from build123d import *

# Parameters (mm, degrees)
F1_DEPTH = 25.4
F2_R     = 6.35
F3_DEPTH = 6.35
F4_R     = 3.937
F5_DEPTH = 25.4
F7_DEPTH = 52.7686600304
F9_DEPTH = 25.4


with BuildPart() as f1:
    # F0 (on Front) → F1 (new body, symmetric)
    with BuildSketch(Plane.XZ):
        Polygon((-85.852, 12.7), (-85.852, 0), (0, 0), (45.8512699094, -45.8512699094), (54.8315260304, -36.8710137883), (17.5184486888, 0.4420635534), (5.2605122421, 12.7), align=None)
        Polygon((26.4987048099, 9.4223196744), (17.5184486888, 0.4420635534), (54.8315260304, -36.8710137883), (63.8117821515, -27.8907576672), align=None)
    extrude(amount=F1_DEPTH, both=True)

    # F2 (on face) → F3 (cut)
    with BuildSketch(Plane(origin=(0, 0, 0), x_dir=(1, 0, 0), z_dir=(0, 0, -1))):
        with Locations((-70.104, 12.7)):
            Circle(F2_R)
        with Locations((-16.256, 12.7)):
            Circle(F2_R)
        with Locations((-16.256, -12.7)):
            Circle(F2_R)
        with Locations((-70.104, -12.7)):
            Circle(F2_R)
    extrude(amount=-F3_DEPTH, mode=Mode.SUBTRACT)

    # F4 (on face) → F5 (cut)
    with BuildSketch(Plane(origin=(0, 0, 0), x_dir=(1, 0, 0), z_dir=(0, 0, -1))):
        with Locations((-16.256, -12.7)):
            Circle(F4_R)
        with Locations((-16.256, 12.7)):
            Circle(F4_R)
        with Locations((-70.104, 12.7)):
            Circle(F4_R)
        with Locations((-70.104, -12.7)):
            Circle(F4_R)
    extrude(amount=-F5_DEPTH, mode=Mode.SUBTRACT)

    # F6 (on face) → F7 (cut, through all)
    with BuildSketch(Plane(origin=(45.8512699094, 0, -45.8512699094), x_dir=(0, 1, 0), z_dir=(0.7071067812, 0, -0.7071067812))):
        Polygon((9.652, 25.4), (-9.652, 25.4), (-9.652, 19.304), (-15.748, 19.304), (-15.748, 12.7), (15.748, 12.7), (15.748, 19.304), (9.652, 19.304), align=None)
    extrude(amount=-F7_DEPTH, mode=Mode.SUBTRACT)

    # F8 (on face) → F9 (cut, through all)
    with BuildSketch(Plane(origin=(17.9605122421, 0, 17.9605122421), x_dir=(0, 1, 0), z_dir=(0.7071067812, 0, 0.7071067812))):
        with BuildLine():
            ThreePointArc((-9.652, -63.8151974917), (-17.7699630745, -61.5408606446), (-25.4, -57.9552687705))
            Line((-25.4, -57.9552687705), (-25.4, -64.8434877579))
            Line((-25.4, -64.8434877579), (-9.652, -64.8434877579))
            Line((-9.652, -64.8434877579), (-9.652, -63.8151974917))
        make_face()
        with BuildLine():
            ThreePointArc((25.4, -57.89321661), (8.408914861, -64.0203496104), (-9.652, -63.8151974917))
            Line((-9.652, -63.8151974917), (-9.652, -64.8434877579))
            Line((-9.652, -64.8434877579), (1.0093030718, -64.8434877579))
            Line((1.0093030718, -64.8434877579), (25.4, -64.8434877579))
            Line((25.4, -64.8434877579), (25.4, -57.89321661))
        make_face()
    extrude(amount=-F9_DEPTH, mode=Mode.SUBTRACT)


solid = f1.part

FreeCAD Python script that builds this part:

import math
import FreeCAD as App
import Part
import Sketcher
Q = App.Units.Quantity

doc = App.newDocument("Part")
body = doc.addObject("PartDesign::Body", "Body")

sketch1 = body.newObject("Sketcher::SketchObject", "Sketch")
sketch1.AttachmentSupport = (doc.getObject("XZ_Plane"), [""])
sketch1.MapMode = "FlatFace"
sketch1.addGeometry([
    Part.LineSegment(App.Vector(-86, 13, 0), App.Vector(-86, 0, 0)),
    Part.LineSegment(App.Vector(-86, 0, 0), App.Vector(0, 0, 0)),
    Part.LineSegment(App.Vector(0, 0, 0), App.Vector(46, -46, 0)),
    Part.LineSegment(App.Vector(46, -46, 0), App.Vector(55, -37, 0)),
    Part.LineSegment(App.Vector(55, -37, 0), App.Vector(64, -28, 0)),
    Part.LineSegment(App.Vector(64, -28, 0), App.Vector(26, 9, 0)),
    Part.LineSegment(App.Vector(26, 9, 0), App.Vector(18, 0, 0)),
    Part.LineSegment(App.Vector(18, 0, 0), App.Vector(5, 13, 0)),
    Part.LineSegment(App.Vector(5, 13, 0), App.Vector(-86, 13, 0)),
], False)
sketch1.addConstraint([
    Sketcher.Constraint("Coincident", 0, 2, 1, 1),
    Sketcher.Constraint("Coincident", 1, 2, 2, 1),
    Sketcher.Constraint("Coincident", 2, 2, 3, 1),
    Sketcher.Constraint("Coincident", 3, 2, 4, 1),
    Sketcher.Constraint("Coincident", 4, 2, 5, 1),
    Sketcher.Constraint("Coincident", 5, 2, 6, 1),
    Sketcher.Constraint("Coincident", 6, 2, 7, 1),
    Sketcher.Constraint("Coincident", 7, 2, 8, 1),
    Sketcher.Constraint("Coincident", 8, 2, 0, 1),
    Sketcher.Constraint("Vertical", 0),
    Sketcher.Constraint("Horizontal", 1),
    Sketcher.Constraint("Horizontal", 8),
    Sketcher.Constraint("Coincident", 1, 2, -1, 1),
    Sketcher.Constraint("Perpendicular", 2, 3),
    Sketcher.Constraint("Parallel", 3, 4),
    Sketcher.Constraint("Perpendicular", 4, 5),
    Sketcher.Constraint("Perpendicular", 5, 6),
    Sketcher.Constraint("Perpendicular", 6, 7),
    Sketcher.Constraint("Equal", 3, 4),
    Sketcher.Constraint("Equal", 4, 6),
    Sketcher.Constraint("DistanceY", 0, 2, 0, 1, Q("0.5 in")),
    Sketcher.Constraint("Angle", 2, Q("-45 deg")),
    Sketcher.Constraint("Distance", 3, Q("0.5 in")),
    Sketcher.Constraint("DistanceX", 1, 1, 1, 2, Q("3.38 in")),
    Sketcher.Constraint("Distance", 5, 52.76866),
    Sketcher.Constraint("Distance", 7, 17.33534),
])
pad1 = body.newObject("PartDesign::Pad", "Pad")
pad1.Profile = sketch1
pad1.Length = Q("2 in")
pad1.Midplane = True

sketch2 = body.newObject("Sketcher::SketchObject", "Sketch001")
sketch2.AttachmentSupport = (doc.getObject("XY_Plane"), [""])
sketch2.MapMode = "FlatFace"
sketch2.addGeometry([
    Part.Circle(App.Vector(-70, -13, 0), App.Vector(0, 0, 1), 6),
    Part.Circle(App.Vector(-16, -13, 0), App.Vector(0, 0, 1), 6),
    Part.Circle(App.Vector(-16, 13, 0), App.Vector(0, 0, 1), 6),
    Part.Circle(App.Vector(-70, 13, 0), App.Vector(0, 0, 1), 6),
], False)
sketch2.addConstraint([
    Sketcher.Constraint("Equal", 0, 1),
    Sketcher.Constraint("Equal", 1, 2),
    Sketcher.Constraint("Equal", 2, 3),
    Sketcher.Constraint("Symmetric", 1, 3, 2, 3, -1),
    Sketcher.Constraint("Symmetric", 0, 3, 3, 3, -1),
    Sketcher.Constraint("Horizontal", 0, 3, 1, 3),
    Sketcher.Constraint("Diameter", 0, Q("0.5 in")),
    Sketcher.Constraint("DistanceY", 1, 3, 2, 3, Q("1 in")),
    Sketcher.Constraint("DistanceX", 0, 3, -1, 1, Q("2.76 in")),
    Sketcher.Constraint("DistanceX", 1, 3, -1, 1, Q("0.64 in")),
])
pocket1 = body.newObject("PartDesign::Pocket", "Pocket")
pocket1.Profile = sketch2
pocket1.Length = Q("0.25 in")
pocket1.Reversed = True

sketch3 = body.newObject("Sketcher::SketchObject", "Sketch002")
sketch3.AttachmentSupport = (doc.getObject("XY_Plane"), [""])
sketch3.MapMode = "FlatFace"
sketch3.addGeometry([
    Part.Circle(App.Vector(-16.3, 12.7, 0), App.Vector(0, 0, 1), 3.9),
    Part.Circle(App.Vector(-16.3, -12.7, 0), App.Vector(0, 0, 1), 3.9),
    Part.Circle(App.Vector(-70.1, -12.7, 0), App.Vector(0, 0, 1), 3.9),
    Part.Circle(App.Vector(-70.1, 12.7, 0), App.Vector(0, 0, 1), 3.9),
], False)
sketch3.addConstraint([
    Sketcher.Constraint("Equal", 0, 1),
    Sketcher.Constraint("Equal", 1, 2),
    Sketcher.Constraint("Equal", 2, 3),
    Sketcher.Constraint("Symmetric", 0, 3, 1, 3, -1),
    Sketcher.Constraint("Symmetric", 2, 3, 3, 3, -1),
    Sketcher.Constraint("Horizontal", 1, 3, 2, 3),
    Sketcher.Constraint("Diameter", 0, Q("0.31 in")),
    Sketcher.Constraint("DistanceY", 1, 3, 0, 3, Q("1 in")),
    Sketcher.Constraint("DistanceX", 0, 3, -1, 1, Q("0.64 in")),
    Sketcher.Constraint("DistanceX", 2, 3, -1, 1, Q("2.76 in")),
])
pocket2 = body.newObject("PartDesign::Pocket", "Pocket001")
pocket2.Profile = sketch3
pocket2.Length = Q("1 in")
pocket2.Reversed = True

sketch4 = body.newObject("Sketcher::SketchObject", "Sketch003")
sketch4.Placement = App.Placement(App.Vector(45.85127, 0, -45.85127), App.Rotation(App.Vector(0, 1, 0), App.Vector(0.707106781, 0, 0.707106781), App.Vector(0.707106781, 0, -0.707106781), "ZXY"))
sketch4.addGeometry([
    Part.LineSegment(App.Vector(10, 25, 0), App.Vector(-10, 25, 0)),
    Part.LineSegment(App.Vector(-10, 25, 0), App.Vector(-10, 19, 0)),
    Part.LineSegment(App.Vector(-10, 19, 0), App.Vector(-16, 19, 0)),
    Part.LineSegment(App.Vector(-16, 19, 0), App.Vector(-16, 13, 0)),
    Part.LineSegment(App.Vector(-16, 13, 0), App.Vector(16, 13, 0)),
    Part.LineSegment(App.Vector(16, 13, 0), App.Vector(16, 19, 0)),
    Part.LineSegment(App.Vector(16, 19, 0), App.Vector(10, 19, 0)),
    Part.LineSegment(App.Vector(10, 19, 0), App.Vector(10, 25, 0)),
], False)
sketch4.addConstraint([
    Sketcher.Constraint("Coincident", 0, 2, 1, 1),
    Sketcher.Constraint("Coincident", 1, 2, 2, 1),
    Sketcher.Constraint("Coincident", 2, 2, 3, 1),
    Sketcher.Constraint("Coincident", 3, 2, 4, 1),
    Sketcher.Constraint("Coincident", 4, 2, 5, 1),
    Sketcher.Constraint("Coincident", 5, 2, 6, 1),
    Sketcher.Constraint("Coincident", 6, 2, 7, 1),
    Sketcher.Constraint("Coincident", 7, 2, 0, 1),
    Sketcher.Constraint("Horizontal", 0),
    Sketcher.Constraint("Vertical", 1),
    Sketcher.Constraint("Horizontal", 2),
    Sketcher.Constraint("Vertical", 3),
    Sketcher.Constraint("Horizontal", 4),
    Sketcher.Constraint("Vertical", 5),
    Sketcher.Constraint("Horizontal", 6),
    Sketcher.Constraint("Vertical", 7),
    Sketcher.Constraint("Symmetric", 2, 2, 5, 2, -2),
    Sketcher.Constraint("Equal", 2, 6),
    Sketcher.Constraint("Equal", 6, 1),
    Sketcher.Constraint("DistanceY", -1, 1, 0, 2, Q("1 in")),
    Sketcher.Constraint("DistanceX", 1, 2, 4, 2, Q("1 in")),
    Sketcher.Constraint("DistanceX", 0, 2, 0, 1, Q("0.76 in")),
    Sketcher.Constraint("DistanceY", 3, 2, 3, 1, Q("0.26 in")),
])
pocket3 = body.newObject("PartDesign::Pocket", "Pocket002")
pocket3.Profile = sketch4
pocket3.Type = "ThroughAll"

sketch5 = body.newObject("Sketcher::SketchObject", "Sketch004")
sketch5.Placement = App.Placement(App.Vector(17.960512, 0, 17.960512), App.Rotation(App.Vector(0, 1, 0), App.Vector(-0.707106781, 0, 0.707106781), App.Vector(0.707106781, 0, 0.707106781), "ZXY"))
sketch5.addGeometry([
    Part.ArcOfCircle(Part.Circle(App.Vector(0, -14, 0), App.Vector(0, 0, 1), 51), math.radians(-119.93), math.radians(-100.89)),
    Part.LineSegment(App.Vector(-25, -58, 0), App.Vector(-25, -65, 0)),
    Part.LineSegment(App.Vector(-25, -65, 0), App.Vector(25, -65, 0)),
    Part.LineSegment(App.Vector(25, -65, 0), App.Vector(25, -58, 0)),
    Part.ArcOfCircle(Part.Circle(App.Vector(0, -14, 0), App.Vector(0, 0, 1), 51), math.radians(-101), math.radians(-60)),
], False)
sketch5.addConstraint([
    Sketcher.Constraint("Coincident", 0, 1, 1, 1),
    Sketcher.Constraint("Coincident", 1, 2, 2, 1),
    Sketcher.Constraint("Coincident", 2, 2, 3, 1),
    Sketcher.Constraint("Coincident", 3, 2, 4, 2),
    Sketcher.Constraint("Tangent", 4, 1, 0, 2),
    Sketcher.Constraint("Vertical", 1),
    Sketcher.Constraint("Horizontal", 2),
    Sketcher.Constraint("Vertical", 3),
    Sketcher.Constraint("Equal", 0, 4),
    Sketcher.Constraint("Radius", 0, Q("2 in")),
    Sketcher.Constraint("DistanceX", 2, 1, 2, 2, Q("2 in")),
    Sketcher.Constraint("DistanceX", 0, 1, -1, 1, Q("1 in")),
    Sketcher.Constraint("DistanceX", 4, 1, -1, 1, Q("0.38 in")),
    Sketcher.Constraint("DistanceY", 1, 2, 1, 1, 6.888219),
    Sketcher.Constraint("DistanceY", 3, 1, 3, 2, 6.950271),
    Sketcher.Constraint("DistanceY", 0, 1, -1, 1, 57.955269),
])
pocket4 = body.newObject("PartDesign::Pocket", "Pocket003")
pocket4.Profile = sketch5
pocket4.Type = "ThroughAll"

doc.recompute()
